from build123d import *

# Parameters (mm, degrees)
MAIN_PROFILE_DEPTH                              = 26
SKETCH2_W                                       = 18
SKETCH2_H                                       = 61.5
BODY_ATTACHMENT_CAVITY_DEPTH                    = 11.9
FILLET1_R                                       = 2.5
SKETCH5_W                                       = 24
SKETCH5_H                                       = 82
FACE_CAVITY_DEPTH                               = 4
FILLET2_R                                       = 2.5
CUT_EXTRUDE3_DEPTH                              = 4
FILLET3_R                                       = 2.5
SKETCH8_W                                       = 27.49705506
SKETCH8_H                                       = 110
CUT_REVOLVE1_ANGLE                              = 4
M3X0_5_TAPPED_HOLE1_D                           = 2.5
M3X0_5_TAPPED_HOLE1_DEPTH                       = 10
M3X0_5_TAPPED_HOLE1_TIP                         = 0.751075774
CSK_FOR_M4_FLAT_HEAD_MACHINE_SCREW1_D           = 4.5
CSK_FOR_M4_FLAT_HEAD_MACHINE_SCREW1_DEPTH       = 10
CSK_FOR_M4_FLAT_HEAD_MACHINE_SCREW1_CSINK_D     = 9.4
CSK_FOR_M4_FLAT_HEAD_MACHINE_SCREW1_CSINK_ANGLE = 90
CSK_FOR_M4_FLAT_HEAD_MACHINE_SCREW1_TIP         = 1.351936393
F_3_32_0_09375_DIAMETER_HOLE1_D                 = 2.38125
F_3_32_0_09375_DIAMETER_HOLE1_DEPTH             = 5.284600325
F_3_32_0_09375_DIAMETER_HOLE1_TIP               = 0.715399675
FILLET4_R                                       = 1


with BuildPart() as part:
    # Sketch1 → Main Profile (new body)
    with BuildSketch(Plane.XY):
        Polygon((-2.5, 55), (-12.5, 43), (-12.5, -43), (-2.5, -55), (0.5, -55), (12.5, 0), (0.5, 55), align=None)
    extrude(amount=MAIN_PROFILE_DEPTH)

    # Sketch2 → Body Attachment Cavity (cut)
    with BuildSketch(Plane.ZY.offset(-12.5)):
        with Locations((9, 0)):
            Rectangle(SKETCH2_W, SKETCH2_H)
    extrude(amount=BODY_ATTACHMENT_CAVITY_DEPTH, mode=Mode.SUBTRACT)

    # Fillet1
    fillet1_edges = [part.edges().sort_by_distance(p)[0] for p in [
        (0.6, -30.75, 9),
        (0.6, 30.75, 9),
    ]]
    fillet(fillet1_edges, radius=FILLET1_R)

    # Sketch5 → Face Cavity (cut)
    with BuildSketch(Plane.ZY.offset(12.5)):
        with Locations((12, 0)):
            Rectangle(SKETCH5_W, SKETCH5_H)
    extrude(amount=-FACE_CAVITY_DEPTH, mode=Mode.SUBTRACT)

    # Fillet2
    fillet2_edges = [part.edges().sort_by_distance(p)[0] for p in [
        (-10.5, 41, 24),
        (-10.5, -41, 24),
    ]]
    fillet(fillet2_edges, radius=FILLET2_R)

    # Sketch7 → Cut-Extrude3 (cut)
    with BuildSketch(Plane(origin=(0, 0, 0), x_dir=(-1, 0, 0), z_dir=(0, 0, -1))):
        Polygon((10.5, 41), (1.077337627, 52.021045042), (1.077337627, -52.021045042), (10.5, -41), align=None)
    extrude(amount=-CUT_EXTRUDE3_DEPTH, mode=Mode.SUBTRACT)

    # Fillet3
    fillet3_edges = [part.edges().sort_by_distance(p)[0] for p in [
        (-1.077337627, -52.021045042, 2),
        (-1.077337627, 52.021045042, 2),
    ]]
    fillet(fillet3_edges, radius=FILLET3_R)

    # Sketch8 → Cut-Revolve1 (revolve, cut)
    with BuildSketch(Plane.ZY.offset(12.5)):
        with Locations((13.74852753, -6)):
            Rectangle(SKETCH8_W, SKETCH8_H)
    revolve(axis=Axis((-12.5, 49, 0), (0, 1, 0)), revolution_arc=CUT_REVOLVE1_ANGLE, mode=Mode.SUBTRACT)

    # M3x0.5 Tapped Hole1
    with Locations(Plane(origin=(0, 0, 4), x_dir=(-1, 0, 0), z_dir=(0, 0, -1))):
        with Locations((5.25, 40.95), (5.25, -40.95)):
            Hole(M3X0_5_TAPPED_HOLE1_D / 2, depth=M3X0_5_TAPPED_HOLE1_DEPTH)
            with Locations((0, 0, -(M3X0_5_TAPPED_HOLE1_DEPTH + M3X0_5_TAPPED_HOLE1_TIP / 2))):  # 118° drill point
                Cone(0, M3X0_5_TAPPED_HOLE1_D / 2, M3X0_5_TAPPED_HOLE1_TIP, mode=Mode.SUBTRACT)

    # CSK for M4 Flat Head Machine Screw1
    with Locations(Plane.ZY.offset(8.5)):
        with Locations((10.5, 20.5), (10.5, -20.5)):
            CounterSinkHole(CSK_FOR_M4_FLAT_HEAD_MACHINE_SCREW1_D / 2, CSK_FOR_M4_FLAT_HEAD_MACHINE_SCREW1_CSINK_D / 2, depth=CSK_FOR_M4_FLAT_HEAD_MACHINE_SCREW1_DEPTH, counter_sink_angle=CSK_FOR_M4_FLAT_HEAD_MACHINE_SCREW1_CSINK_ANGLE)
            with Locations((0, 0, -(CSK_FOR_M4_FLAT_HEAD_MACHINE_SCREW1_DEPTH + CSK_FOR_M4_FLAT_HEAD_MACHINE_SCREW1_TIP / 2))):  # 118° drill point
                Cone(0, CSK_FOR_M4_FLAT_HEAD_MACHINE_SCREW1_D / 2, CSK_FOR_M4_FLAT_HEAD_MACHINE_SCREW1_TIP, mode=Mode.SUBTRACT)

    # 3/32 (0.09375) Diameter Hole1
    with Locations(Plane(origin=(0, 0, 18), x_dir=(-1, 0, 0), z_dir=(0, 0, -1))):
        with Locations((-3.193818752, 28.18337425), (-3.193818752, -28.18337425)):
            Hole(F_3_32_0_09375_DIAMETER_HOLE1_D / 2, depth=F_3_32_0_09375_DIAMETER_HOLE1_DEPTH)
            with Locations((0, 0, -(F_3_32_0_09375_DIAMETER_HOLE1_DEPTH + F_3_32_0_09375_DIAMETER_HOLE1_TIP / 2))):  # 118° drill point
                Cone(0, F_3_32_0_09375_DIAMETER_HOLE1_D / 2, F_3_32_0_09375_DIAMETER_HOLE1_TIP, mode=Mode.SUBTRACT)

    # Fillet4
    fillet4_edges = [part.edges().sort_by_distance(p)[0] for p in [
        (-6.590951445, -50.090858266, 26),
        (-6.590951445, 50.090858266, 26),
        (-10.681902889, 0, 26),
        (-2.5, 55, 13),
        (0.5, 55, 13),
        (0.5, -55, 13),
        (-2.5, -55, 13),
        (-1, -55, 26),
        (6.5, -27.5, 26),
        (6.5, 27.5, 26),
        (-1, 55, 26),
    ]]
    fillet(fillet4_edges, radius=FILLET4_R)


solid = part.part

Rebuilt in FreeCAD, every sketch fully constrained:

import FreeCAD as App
import Part
import Sketcher
from FreeCAD import Vector
Q = App.Units.Quantity


def edges_at(feature, points):
    """Names of the edges that pass closest to the given points."""
    edges = feature.Shape.Edges
    near = lambda p: min(range(len(edges)), key=lambda i: edges[i].distToShape(Part.Vertex(*p))[0])
    return sorted({f"Edge{near(p) + 1}" for p in points})


def add_polygon(sketch, points):
    """Adds a closed chain of lines whose ends are joined by coincident constraints."""
    first, n = sketch.GeometryCount, len(points)
    for a, b in zip(points, points[1:] + points[:1]):
        sketch.addGeometry(Part.LineSegment(App.Vector(*a, 0), App.Vector(*b, 0)), False)
    for i in range(n):
        sketch.addConstraint(Sketcher.Constraint("Coincident", first + i, 2, first + (i + 1) % n, 1))

doc = App.newDocument("Part")
params = doc.addObject("Spreadsheet::Sheet", "Params")
for row, (alias, value) in enumerate([
    ("sketch1_width", "3 mm"),
    ("sketch1_height", "86 mm"),
    ("pad1_length", "26 mm"),
    ("sketch2_height", "18 mm"),
    ("sketch2_width", "61.5 mm"),
    ("pocket1_length", "11.9 mm"),
    ("fillet_radius", "2.5 mm"),
    ("sketch3_width", "82 mm"),
    ("sketch3_height", "24 mm"),
    ("pocket2_length", "4 mm"),
    ("fillet2_radius", "2.5 mm"),
    ("sketch4_height", "82 mm"),
    ("sketch4_length", "14.5 mm"),
    ("pocket3_length", "4 mm"),
    ("fillet3_radius", "2.5 mm"),
    ("sketch5_width", "110 mm"),
    ("groove_angle", "4 deg"),
    ("sketch6_diameter", "2.5 mm"),
    ("hole_diameter", "2.5 mm"),
    ("hole_depth", "10 mm"),
    ("sketch7_diameter", "4.5 mm"),
    ("hole2_diameter", "4.5 mm"),
    ("hole2_depth", "10 mm"),
    ("hole2_csink_diameter", "9.4 mm"),
    ("hole3_diameter", "2.38125 mm"),
    ("hole3_depth", "5.2846 mm"),
    ("fillet4_radius", "1 mm"),
], start=1):
    params.set(f"A{row}", alias)
    params.set(f"B{row}", "=" + value)
    params.setAlias(f"B{row}", alias)

body = doc.addObject("PartDesign::Body", "Body")

# Sketch on XY plane
sketch1 = body.newObject("Sketcher::SketchObject", "Sketch")
sketch1.AttachmentSupport = (doc.getObject("XY_Plane"), [""])
sketch1.MapMode = "FlatFace"
add_polygon(sketch1, [(-2.5, 55), (-12.5, 43), (-12.5, -43), (-2.5, -55), (0.5, -55), (12.5, 0), (0.5, 55)])  # lines 0-6
sketch1.addConstraint(Sketcher.Constraint("Vertical", 1))
sketch1.addConstraint(Sketcher.Constraint("Horizontal", 3))
sketch1.addConstraint(Sketcher.Constraint("Horizontal", 6))
sketch1.addConstraint(Sketcher.Constraint("Symmetric", 3, 2, 5, 2, -1))
sketch1.addConstraint(Sketcher.Constraint("PointOnObject", 4, 2, -1))
sketch1.addConstraint(Sketcher.Constraint("Vertical", 2, 2, 6, 2))
sketch1.addConstraint(Sketcher.Constraint("Equal", 0, 2))
sketch1.addConstraint(Sketcher.Constraint("DistanceX", 3, 1, 3, 2, Q("3 mm")))
sketch1.addConstraint(Sketcher.Constraint("DistanceY", 1, 2, 1, 1, Q("86 mm")))
sketch1.addConstraint(Sketcher.Constraint("DistanceY", 2, 2, -1, 1, Q("55 mm")))
sketch1.addConstraint(Sketcher.Constraint("DistanceX", 1, 2, 2, 2, Q("10 mm")))
sketch1.addConstraint(Sketcher.Constraint("DistanceX", 0, 2, 4, 2, Q("25 mm")))
sketch1.addConstraint(Sketcher.Constraint("DistanceX", 0, 2, -1, 1, Q("12.5 mm")))
sketch1.setExpression("Constraints[14]", "Params.sketch1_width")
sketch1.setExpression("Constraints[15]", "Params.sketch1_height")
pad1 = body.newObject("PartDesign::Pad", "Pad")
pad1.Profile = sketch1
pad1.setExpression("Length", "Params.pad1_length")

# Sketch on YZ plane
sketch2 = body.newObject("Sketcher::SketchObject", "Sketch001")
sketch2.AttachmentSupport = (doc.getObject("YZ_Plane"), [""])
sketch2.MapMode = "FlatFace"
sketch2.AttachmentOffset = App.Placement(Vector(0, 0, 12.5), App.Rotation())
add_polygon(sketch2, [(30.75, 0), (-30.75, 0), (-30.75, 18), (30.75, 18)])  # lines 0-3
sketch2.addConstraint(Sketcher.Constraint("Horizontal", 0))
sketch2.addConstraint(Sketcher.Constraint("Vertical", 1))
sketch2.addConstraint(Sketcher.Constraint("Horizontal", 2))
sketch2.addConstraint(Sketcher.Constraint("Vertical", 3))
sketch2.addConstraint(Sketcher.Constraint("Symmetric", 0, 2, 3, 2, -1, 1))
sketch2.addConstraint(Sketcher.Constraint("DistanceY", 1, 1, 1, 2, Q("18 mm")))
sketch2.addConstraint(Sketcher.Constraint("DistanceX", 0, 2, 0, 1, Q("61.5 mm")))
sketch2.setExpression("Constraints[9]", "Params.sketch2_height")
sketch2.setExpression("Constraints[10]", "Params.sketch2_width")
pocket1 = body.newObject("PartDesign::Pocket", "Pocket")
pocket1.Profile = sketch2
pocket1.setExpression("Length", "Params.pocket1_length")
doc.recompute()

fillet = body.newObject("PartDesign::Fillet", "Fillet")
fillet.Base = (pocket1, edges_at(pocket1, [(0.6, -30.75, 9), (0.6, 30.75, 9)]))
fillet.setExpression("Radius", "Params.fillet_radius")

# Sketch on YZ plane
sketch3 = body.newObject("Sketcher::SketchObject", "Sketch002")
sketch3.AttachmentSupport = (doc.getObject("YZ_Plane"), [""])
sketch3.MapMode = "FlatFace"
sketch3.AttachmentOffset = App.Placement(Vector(0, 0, -12.5), App.Rotation())
add_polygon(sketch3, [(41, 0), (-41, 0), (-41, 24), (41, 24)])  # lines 0-3
sketch3.addConstraint(Sketcher.Constraint("Horizontal", 0))
sketch3.addConstraint(Sketcher.Constraint("Vertical", 1))
sketch3.addConstraint(Sketcher.Constraint("Horizontal", 2))
sketch3.addConstraint(Sketcher.Constraint("Vertical", 3))
sketch3.addConstraint(Sketcher.Constraint("Symmetric", 0, 2, 3, 2, -1, 1))
sketch3.addConstraint(Sketcher.Constraint("DistanceX", 0, 2, 0, 1, Q("82 mm")))
sketch3.addConstraint(Sketcher.Constraint("DistanceY", 1, 1, 1, 2, Q("24 mm")))
sketch3.setExpression("Constraints[9]", "Params.sketch3_width")
sketch3.setExpression("Constraints[10]", "Params.sketch3_height")
pocket2 = body.newObject("PartDesign::Pocket", "Pocket001")
pocket2.Profile = sketch3
pocket2.setExpression("Length", "Params.pocket2_length")
pocket2.Reversed = True
doc.recompute()

fillet2 = body.newObject("PartDesign::Fillet", "Fillet001")
fillet2.Base = (pocket2, edges_at(pocket2, [(-10.5, 41, 24), (-10.5, -41, 24)]))
fillet2.setExpression("Radius", "Params.fillet2_radius")

# Sketch on XY plane
sketch4 = body.newObject("Sketcher::SketchObject", "Sketch003")
sketch4.AttachmentSupport = (doc.getObject("XY_Plane"), [""])
sketch4.MapMode = "FlatFace"
add_polygon(sketch4, [(-10.5, 41), (-1.077338, 52.021045), (-1.077338, -52.021045), (-10.5, -41)])  # lines 0-3
sketch4.addConstraint(Sketcher.Constraint("Vertical", 1))
sketch4.addConstraint(Sketcher.Constraint("Vertical", 3))
sketch4.addConstraint(Sketcher.Constraint("Equal", 0, 2))
sketch4.addConstraint(Sketcher.Constraint("DistanceY", 3, 1, 3, 2, Q("82 mm")))
sketch4.addConstraint(Sketcher.Constraint("DistanceY", 2, 2, -1, 1, Q("41 mm")))
sketch4.addConstraint(Sketcher.Constraint("Distance", 0, Q("14.5 mm")))
sketch4.addConstraint(Sketcher.Constraint("DistanceX", 2, 2, -1, 1, Q("10.5 mm")))
sketch4.addConstraint(Sketcher.Constraint("DistanceY", 1, 2, 1, 1, Q("104.04209 mm")))
sketch4.setExpression("Constraints[7]", "Params.sketch4_height")
sketch4.setExpression("Constraints[9]", "Params.sketch4_length")
pocket3 = body.newObject("PartDesign::Pocket", "Pocket002")
pocket3.Profile = sketch4
pocket3.setExpression("Length", "Params.pocket3_length")
pocket3.Reversed = True
doc.recompute()

fillet3 = body.newObject("PartDesign::Fillet", "Fillet002")
fillet3.Base = (pocket3, edges_at(pocket3, [(-1.077, -52.021, 2), (-1.077, 52.021, 2)]))
fillet3.setExpression("Radius", "Params.fillet3_radius")

# Sketch on YZ plane
sketch5 = body.newObject("Sketcher::SketchObject", "Sketch004")
sketch5.AttachmentSupport = (doc.getObject("YZ_Plane"), [""])
sketch5.MapMode = "FlatFace"
sketch5.AttachmentOffset = App.Placement(Vector(0, 0, -12.5), App.Rotation())
add_polygon(sketch5, [(49, 0), (-61, 0), (-61, 27.497055), (49, 27.497055)])  # lines 0-3
sketch5.addConstraint(Sketcher.Constraint("Horizontal", 0))
sketch5.addConstraint(Sketcher.Constraint("Vertical", 1))
sketch5.addConstraint(Sketcher.Constraint("Horizontal", 2))
sketch5.addConstraint(Sketcher.Constraint("Vertical", 3))
sketch5.addConstraint(Sketcher.Constraint("PointOnObject", 0, 2, -1))
sketch5.addConstraint(Sketcher.Constraint("DistanceX", 0, 2, 0, 1, Q("110 mm")))
sketch5.addConstraint(Sketcher.Constraint("DistanceX", 0, 2, -1, 1, Q("61 mm")))
sketch5.addConstraint(Sketcher.Constraint("DistanceY", 1, 1, 1, 2, Q("27.497055 mm")))
sketch5.setExpression("Constraints[9]", "Params.sketch5_width")
groove = body.newObject("PartDesign::Groove", "Groove")
groove.Profile = sketch5
groove.ReferenceAxis = (sketch5, ["H_Axis"])
groove.setExpression("Angle", "Params.groove_angle")

# Sketch on XY plane
sketch6 = body.newObject("Sketcher::SketchObject", "Sketch005")
sketch6.AttachmentSupport = (doc.getObject("XY_Plane"), [""])
sketch6.MapMode = "FlatFace"
sketch6.AttachmentOffset = App.Placement(Vector(0, 0, 4), App.Rotation())
sketch6.addGeometry(Part.Circle(Vector(-5.25, 40.95, 0), Vector(0, 0, 1), 1.25), False)
sketch6.addGeometry(Part.Circle(Vector(-5.25, -40.95, 0), Vector(0, 0, 1), 1.25), False)
sketch6.addConstraint(Sketcher.Constraint("Equal", 0, 1))
sketch6.addConstraint(Sketcher.Constraint("Symmetric", 0, 3, 1, 3, -1))
sketch6.addConstraint(Sketcher.Constraint("Diameter", 0, Q("2.5 mm")))
sketch6.addConstraint(Sketcher.Constraint("DistanceY", 1, 3, 0, 3, Q("81.9 mm")))
sketch6.addConstraint(Sketcher.Constraint("DistanceX", 0, 3, -1, 1, Q("5.25 mm")))
sketch6.setExpression("Constraints[2]", "Params.sketch6_diameter")
doc.recompute()
hole = body.newObject("PartDesign::Hole", "Hole")
hole.Profile = sketch6
hole.ThreadType = "None"
hole.setExpression("Diameter", "Params.hole_diameter")
hole.DepthType = "Dimension"
hole.setExpression("Depth", "Params.hole_depth")
hole.DrillPoint = "Angled"
hole.DrillPointAngle = 118
hole.Reversed = True

# Sketch on YZ plane
sketch7 = body.newObject("Sketcher::SketchObject", "Sketch006")
sketch7.AttachmentSupport = (doc.getObject("YZ_Plane"), [""])
sketch7.MapMode = "FlatFace"
sketch7.AttachmentOffset = App.Placement(Vector(0, 0, -8.5), App.Rotation())
sketch7.addGeometry(Part.Circle(Vector(20.5, 10.5, 0), Vector(0, 0, 1), 2.25), False)
sketch7.addGeometry(Part.Circle(Vector(-20.5, 10.5, 0), Vector(0, 0, 1), 2.25), False)
sketch7.addConstraint(Sketcher.Constraint("Equal", 0, 1))
sketch7.addConstraint(Sketcher.Constraint("Symmetric", 0, 3, 1, 3, -2))
sketch7.addConstraint(Sketcher.Constraint("Diameter", 0, Q("4.5 mm")))
sketch7.addConstraint(Sketcher.Constraint("DistanceX", 1, 3, 0, 3, Q("41 mm")))
sketch7.addConstraint(Sketcher.Constraint("DistanceY", -1, 1, 0, 3, Q("10.5 mm")))
sketch7.setExpression("Constraints[2]", "Params.sketch7_diameter")
doc.recompute()
hole2 = body.newObject("PartDesign::Hole", "Hole001")
hole2.Profile = sketch7
hole2.ThreadType = "None"
hole2.setExpression("Diameter", "Params.hole2_diameter")
hole2.DepthType = "Dimension"
hole2.setExpression("Depth", "Params.hole2_depth")
hole2.DrillPoint = "Angled"
hole2.DrillPointAngle = 118
hole2.HoleCutType = "Countersink"
hole2.setExpression("HoleCutDiameter", "Params.hole2_csink_diameter")
hole2.HoleCutCountersinkAngle = 90
hole2.Reversed = True

# Sketch on XY plane
sketch8 = body.newObject("Sketcher::SketchObject", "Sketch007")
sketch8.AttachmentSupport = (doc.getObject("XY_Plane"), [""])
sketch8.MapMode = "FlatFace"
sketch8.AttachmentOffset = App.Placement(Vector(0, 0, 18), App.Rotation())
sketch8.addGeometry(Part.Circle(Vector(3.193819, 28.183374, 0), Vector(0, 0, 1), 1.190625), False)
sketch8.addGeometry(Part.Circle(Vector(3.193819, -28.183374, 0), Vector(0, 0, 1), 1.190625), False)
sketch8.addConstraint(Sketcher.Constraint("Equal", 0, 1))
sketch8.addConstraint(Sketcher.Constraint("Symmetric", 0, 3, 1, 3, -1))
sketch8.addConstraint(Sketcher.Constraint("Diameter", 0, Q("2.38125 mm")))
sketch8.addConstraint(Sketcher.Constraint("DistanceX", -1, 1, 0, 3, Q("3.193819 mm")))
sketch8.addConstraint(Sketcher.Constraint("DistanceY", 1, 3, 0, 3, Q("56.366748 mm")))
doc.recompute()
hole3 = body.newObject("PartDesign::Hole", "Hole002")
hole3.Profile = sketch8
hole3.ThreadType = "None"
hole3.setExpression("Diameter", "Params.hole3_diameter")
hole3.DepthType = "Dimension"
hole3.setExpression("Depth", "Params.hole3_depth")
hole3.DrillPoint = "Angled"
hole3.DrillPointAngle = 118
hole3.Reversed = True
doc.recompute()

fillet4 = body.newObject("PartDesign::Fillet", "Fillet003")
fillet4.Base = (hole3, edges_at(hole3, [
    (-6.591, -50.091, 26),
    (-6.591, 50.091, 26),
    (-10.682, 0, 26),
    (-2.5, 55, 13),
    (0.5, 55, 13),
    (0.5, -55, 13),
    (-2.5, -55, 13),
    (-1, -55, 26),
    (6.5, -27.5, 26),
    (6.5, 27.5, 26),
    (-1, 55, 26),
]))
fillet4.setExpression("Radius", "Params.fillet4_radius")

doc.recompute()
